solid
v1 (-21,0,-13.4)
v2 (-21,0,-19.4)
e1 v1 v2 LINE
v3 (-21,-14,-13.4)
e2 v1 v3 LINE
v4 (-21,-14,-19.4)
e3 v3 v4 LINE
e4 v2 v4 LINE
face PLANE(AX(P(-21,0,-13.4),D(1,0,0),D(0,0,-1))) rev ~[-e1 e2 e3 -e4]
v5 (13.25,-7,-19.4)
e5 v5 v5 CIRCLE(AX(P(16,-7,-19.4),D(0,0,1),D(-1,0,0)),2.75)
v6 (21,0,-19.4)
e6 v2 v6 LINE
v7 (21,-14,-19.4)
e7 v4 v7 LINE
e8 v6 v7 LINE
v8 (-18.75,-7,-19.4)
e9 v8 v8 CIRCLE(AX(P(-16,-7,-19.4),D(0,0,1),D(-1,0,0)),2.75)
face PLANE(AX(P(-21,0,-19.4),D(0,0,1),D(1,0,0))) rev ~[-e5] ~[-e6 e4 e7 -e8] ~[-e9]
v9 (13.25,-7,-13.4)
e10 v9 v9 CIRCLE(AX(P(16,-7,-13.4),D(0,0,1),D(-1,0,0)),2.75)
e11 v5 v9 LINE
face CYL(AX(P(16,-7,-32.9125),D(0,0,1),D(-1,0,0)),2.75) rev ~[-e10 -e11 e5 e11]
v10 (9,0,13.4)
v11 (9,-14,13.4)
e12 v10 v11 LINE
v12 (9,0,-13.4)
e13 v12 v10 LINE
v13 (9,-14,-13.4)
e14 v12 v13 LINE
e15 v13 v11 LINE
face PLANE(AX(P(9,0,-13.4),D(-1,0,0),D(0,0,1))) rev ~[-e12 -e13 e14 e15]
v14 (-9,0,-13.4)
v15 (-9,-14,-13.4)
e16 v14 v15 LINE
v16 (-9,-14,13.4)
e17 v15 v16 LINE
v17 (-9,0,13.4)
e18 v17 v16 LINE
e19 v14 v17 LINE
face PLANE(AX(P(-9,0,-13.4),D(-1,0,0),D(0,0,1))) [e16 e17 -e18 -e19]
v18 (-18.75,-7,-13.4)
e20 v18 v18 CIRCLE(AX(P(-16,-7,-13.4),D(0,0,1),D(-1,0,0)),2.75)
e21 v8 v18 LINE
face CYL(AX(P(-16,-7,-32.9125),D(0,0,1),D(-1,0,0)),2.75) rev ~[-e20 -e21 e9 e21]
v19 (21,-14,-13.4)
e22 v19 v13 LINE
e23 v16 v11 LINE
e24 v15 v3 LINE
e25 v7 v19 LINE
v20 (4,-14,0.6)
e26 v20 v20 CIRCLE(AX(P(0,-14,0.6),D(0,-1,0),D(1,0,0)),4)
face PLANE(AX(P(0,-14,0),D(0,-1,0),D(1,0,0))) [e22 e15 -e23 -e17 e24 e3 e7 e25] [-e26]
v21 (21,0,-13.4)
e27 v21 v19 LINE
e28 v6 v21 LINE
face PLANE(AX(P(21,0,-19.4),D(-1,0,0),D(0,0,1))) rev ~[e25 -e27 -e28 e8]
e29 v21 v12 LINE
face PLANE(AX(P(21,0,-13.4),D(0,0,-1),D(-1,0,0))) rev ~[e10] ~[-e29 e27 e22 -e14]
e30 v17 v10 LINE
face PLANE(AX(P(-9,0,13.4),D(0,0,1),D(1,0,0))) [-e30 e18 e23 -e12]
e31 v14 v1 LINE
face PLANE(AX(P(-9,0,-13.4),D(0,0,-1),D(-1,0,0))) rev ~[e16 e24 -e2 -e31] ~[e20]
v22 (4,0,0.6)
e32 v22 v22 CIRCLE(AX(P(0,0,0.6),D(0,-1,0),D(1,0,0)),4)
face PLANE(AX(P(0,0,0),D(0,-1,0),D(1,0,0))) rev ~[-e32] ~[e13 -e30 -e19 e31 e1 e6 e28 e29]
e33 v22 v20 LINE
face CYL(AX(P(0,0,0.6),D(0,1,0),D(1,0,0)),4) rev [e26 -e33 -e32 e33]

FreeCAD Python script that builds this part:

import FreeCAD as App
import Part
import Sketcher

V = App.Vector

doc = App.newDocument("Part")
body = doc.addObject("PartDesign::Body", "Body")

# Sketch on XZ plane
sketch1 = body.newObject("Sketcher::SketchObject", "Sketch")
sketch1.AttachmentSupport = (doc.getObject("XZ_Plane"), [""])
sketch1.MapMode = "FlatFace"
sketch1.addGeometry([
    Part.LineSegment(V(-9, 13.4, 0), V(-9, -13.4, 0)),  # 0
    Part.LineSegment(V(-9, -13.4, 0), V(-21, -13.4, 0)),  # 1
    Part.LineSegment(V(-21, -13.4, 0), V(-21, -19.4, 0)),  # 2
    Part.LineSegment(V(-21, -19.4, 0), V(21, -19.4, 0)),  # 3
    Part.LineSegment(V(21, -19.4, 0), V(21, -13.4, 0)),  # 4
    Part.LineSegment(V(21, -13.4, 0), V(9, -13.4, 0)),  # 5
    Part.LineSegment(V(9, -13.4, 0), V(9, 13.4, 0)),  # 6
    Part.LineSegment(V(9, 13.4, 0), V(-9, 13.4, 0)),  # 7
    Part.Circle(V(0, 0.6, 0), V(0, 0, 1), 4),  # 8
], False)
sketch1.addConstraint([
    Sketcher.Constraint("Coincident", 0, 2, 1, 1),
    Sketcher.Constraint("Coincident", 1, 2, 2, 1),
    Sketcher.Constraint("Coincident", 2, 2, 3, 1),
    Sketcher.Constraint("Coincident", 3, 2, 4, 1),
    Sketcher.Constraint("Coincident", 4, 2, 5, 1),
    Sketcher.Constraint("Coincident", 5, 2, 6, 1),
    Sketcher.Constraint("Coincident", 6, 2, 7, 1),
    Sketcher.Constraint("Coincident", 7, 2, 0, 1),
    Sketcher.Constraint("Vertical", 0),
    Sketcher.Constraint("Horizontal", 1),
    Sketcher.Constraint("Vertical", 2),
    Sketcher.Constraint("Horizontal", 3),
    Sketcher.Constraint("Vertical", 4),
    Sketcher.Constraint("Horizontal", 5),
    Sketcher.Constraint("Vertical", 6),
    Sketcher.Constraint("Horizontal", 7),
    Sketcher.Constraint("Symmetric", 0, 2, 6, 2, -1, 1),
    Sketcher.Constraint("Symmetric", 1, 2, 4, 2, -2),
    Sketcher.Constraint("PointOnObject", 8, 3, -2),
    Sketcher.Constraint("Diameter", 8, 8.0),
    Sketcher.Constraint("DistanceX", 1, 2, 1, 1, 12.0),
    Sketcher.Constraint("DistanceX", 3, 1, 3, 2, 42.0),
    Sketcher.Constraint("DistanceY", 2, 2, 2, 1, 6.0),
    Sketcher.Constraint("DistanceY", 0, 2, 0, 1, 26.8),
    Sketcher.Constraint("DistanceY", 0, 2, 8, 3, 14.0),
])
pad1 = body.newObject("PartDesign::Pad", "Pad")
pad1.Profile = sketch1
pad1.Length = 14

# Sketch on XY plane
sketch2 = body.newObject("Sketcher::SketchObject", "Sketch001")
sketch2.AttachmentSupport = (doc.getObject("XY_Plane"), [""])
sketch2.MapMode = "FlatFace"
sketch2.AttachmentOffset = App.Placement(V(0, 0, -19.4), App.Rotation())
sketch2.addGeometry([
    Part.Circle(V(-16, -7, 0), V(0, 0, 1), 2.75),
    Part.Circle(V(16, -7, 0), V(0, 0, 1), 2.75),
], False)
sketch2.addConstraint([
    Sketcher.Constraint("Equal", 0, 1),
    Sketcher.Constraint("Symmetric", 0, 3, 1, 3, -2),
    Sketcher.Constraint("Diameter", 0, 5.5),
    Sketcher.Constraint("DistanceX", 0, 3, -1, 1, 16.0),
    Sketcher.Constraint("DistanceY", 0, 3, -1, 1, 7.0),
])
doc.recompute()
hole = body.newObject("PartDesign::Hole", "Hole")
hole.Profile = sketch2
hole.ThreadType = "None"
hole.Diameter = 5.5
hole.DepthType = "Dimension"
hole.Depth = 13.5125
hole.DrillPoint = "Angled"
hole.DrillPointAngle = 118
hole.Reversed = True

doc.recompute()
